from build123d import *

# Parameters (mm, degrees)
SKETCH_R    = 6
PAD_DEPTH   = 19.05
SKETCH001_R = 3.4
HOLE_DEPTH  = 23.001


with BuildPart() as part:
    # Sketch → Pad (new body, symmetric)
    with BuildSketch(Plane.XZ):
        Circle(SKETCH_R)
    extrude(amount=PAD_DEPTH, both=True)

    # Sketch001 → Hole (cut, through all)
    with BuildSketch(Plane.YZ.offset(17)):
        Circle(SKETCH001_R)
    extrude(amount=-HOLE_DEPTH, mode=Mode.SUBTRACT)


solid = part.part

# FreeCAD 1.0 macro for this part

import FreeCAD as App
import Part
import Sketcher
from FreeCAD import Vector
Q = App.Units.Quantity

doc = App.newDocument("Part")
body = doc.addObject("PartDesign::Body", "Body")

# Sketch on XZ plane
sketch1 = body.newObject("Sketcher::SketchObject", "Sketch")
sketch1.AttachmentSupport = (doc.getObject("XZ_Plane"), [""])
sketch1.MapMode = "FlatFace"
sketch1.addGeometry(Part.Circle(Vector(0, 0, 0), Vector(0, 0, 1), 6), False)
sketch1.addConstraint(Sketcher.Constraint("Coincident", 0, 3, -1, 1))
sketch1.addConstraint(Sketcher.Constraint("Diameter", 0, Q("12 mm")))
pad1 = body.newObject("PartDesign::Pad", "Pad")
pad1.Profile = sketch1
pad1.Length = 38.1
pad1.Midplane = True

# Sketch on YZ plane
sketch2 = body.newObject("Sketcher::SketchObject", "Sketch001")
sketch2.AttachmentSupport = (doc.getObject("YZ_Plane"), [""])
sketch2.MapMode = "FlatFace"
sketch2.AttachmentOffset = App.Placement(Vector(0, 0, 17), App.Rotation())
sketch2.addGeometry(Part.Circle(Vector(0, 0, 0), Vector(0, 0, 1), 3.4), False)
sketch2.addConstraint(Sketcher.Constraint("Coincident", 0, 3, -1, 1))
sketch2.addConstraint(Sketcher.Constraint("Diameter", 0, Q("6.8 mm")))
pocket1 = body.newObject("PartDesign::Pocket", "Pocket")
pocket1.Profile = sketch2
pocket1.Type = "ThroughAll"

doc.recompute()
